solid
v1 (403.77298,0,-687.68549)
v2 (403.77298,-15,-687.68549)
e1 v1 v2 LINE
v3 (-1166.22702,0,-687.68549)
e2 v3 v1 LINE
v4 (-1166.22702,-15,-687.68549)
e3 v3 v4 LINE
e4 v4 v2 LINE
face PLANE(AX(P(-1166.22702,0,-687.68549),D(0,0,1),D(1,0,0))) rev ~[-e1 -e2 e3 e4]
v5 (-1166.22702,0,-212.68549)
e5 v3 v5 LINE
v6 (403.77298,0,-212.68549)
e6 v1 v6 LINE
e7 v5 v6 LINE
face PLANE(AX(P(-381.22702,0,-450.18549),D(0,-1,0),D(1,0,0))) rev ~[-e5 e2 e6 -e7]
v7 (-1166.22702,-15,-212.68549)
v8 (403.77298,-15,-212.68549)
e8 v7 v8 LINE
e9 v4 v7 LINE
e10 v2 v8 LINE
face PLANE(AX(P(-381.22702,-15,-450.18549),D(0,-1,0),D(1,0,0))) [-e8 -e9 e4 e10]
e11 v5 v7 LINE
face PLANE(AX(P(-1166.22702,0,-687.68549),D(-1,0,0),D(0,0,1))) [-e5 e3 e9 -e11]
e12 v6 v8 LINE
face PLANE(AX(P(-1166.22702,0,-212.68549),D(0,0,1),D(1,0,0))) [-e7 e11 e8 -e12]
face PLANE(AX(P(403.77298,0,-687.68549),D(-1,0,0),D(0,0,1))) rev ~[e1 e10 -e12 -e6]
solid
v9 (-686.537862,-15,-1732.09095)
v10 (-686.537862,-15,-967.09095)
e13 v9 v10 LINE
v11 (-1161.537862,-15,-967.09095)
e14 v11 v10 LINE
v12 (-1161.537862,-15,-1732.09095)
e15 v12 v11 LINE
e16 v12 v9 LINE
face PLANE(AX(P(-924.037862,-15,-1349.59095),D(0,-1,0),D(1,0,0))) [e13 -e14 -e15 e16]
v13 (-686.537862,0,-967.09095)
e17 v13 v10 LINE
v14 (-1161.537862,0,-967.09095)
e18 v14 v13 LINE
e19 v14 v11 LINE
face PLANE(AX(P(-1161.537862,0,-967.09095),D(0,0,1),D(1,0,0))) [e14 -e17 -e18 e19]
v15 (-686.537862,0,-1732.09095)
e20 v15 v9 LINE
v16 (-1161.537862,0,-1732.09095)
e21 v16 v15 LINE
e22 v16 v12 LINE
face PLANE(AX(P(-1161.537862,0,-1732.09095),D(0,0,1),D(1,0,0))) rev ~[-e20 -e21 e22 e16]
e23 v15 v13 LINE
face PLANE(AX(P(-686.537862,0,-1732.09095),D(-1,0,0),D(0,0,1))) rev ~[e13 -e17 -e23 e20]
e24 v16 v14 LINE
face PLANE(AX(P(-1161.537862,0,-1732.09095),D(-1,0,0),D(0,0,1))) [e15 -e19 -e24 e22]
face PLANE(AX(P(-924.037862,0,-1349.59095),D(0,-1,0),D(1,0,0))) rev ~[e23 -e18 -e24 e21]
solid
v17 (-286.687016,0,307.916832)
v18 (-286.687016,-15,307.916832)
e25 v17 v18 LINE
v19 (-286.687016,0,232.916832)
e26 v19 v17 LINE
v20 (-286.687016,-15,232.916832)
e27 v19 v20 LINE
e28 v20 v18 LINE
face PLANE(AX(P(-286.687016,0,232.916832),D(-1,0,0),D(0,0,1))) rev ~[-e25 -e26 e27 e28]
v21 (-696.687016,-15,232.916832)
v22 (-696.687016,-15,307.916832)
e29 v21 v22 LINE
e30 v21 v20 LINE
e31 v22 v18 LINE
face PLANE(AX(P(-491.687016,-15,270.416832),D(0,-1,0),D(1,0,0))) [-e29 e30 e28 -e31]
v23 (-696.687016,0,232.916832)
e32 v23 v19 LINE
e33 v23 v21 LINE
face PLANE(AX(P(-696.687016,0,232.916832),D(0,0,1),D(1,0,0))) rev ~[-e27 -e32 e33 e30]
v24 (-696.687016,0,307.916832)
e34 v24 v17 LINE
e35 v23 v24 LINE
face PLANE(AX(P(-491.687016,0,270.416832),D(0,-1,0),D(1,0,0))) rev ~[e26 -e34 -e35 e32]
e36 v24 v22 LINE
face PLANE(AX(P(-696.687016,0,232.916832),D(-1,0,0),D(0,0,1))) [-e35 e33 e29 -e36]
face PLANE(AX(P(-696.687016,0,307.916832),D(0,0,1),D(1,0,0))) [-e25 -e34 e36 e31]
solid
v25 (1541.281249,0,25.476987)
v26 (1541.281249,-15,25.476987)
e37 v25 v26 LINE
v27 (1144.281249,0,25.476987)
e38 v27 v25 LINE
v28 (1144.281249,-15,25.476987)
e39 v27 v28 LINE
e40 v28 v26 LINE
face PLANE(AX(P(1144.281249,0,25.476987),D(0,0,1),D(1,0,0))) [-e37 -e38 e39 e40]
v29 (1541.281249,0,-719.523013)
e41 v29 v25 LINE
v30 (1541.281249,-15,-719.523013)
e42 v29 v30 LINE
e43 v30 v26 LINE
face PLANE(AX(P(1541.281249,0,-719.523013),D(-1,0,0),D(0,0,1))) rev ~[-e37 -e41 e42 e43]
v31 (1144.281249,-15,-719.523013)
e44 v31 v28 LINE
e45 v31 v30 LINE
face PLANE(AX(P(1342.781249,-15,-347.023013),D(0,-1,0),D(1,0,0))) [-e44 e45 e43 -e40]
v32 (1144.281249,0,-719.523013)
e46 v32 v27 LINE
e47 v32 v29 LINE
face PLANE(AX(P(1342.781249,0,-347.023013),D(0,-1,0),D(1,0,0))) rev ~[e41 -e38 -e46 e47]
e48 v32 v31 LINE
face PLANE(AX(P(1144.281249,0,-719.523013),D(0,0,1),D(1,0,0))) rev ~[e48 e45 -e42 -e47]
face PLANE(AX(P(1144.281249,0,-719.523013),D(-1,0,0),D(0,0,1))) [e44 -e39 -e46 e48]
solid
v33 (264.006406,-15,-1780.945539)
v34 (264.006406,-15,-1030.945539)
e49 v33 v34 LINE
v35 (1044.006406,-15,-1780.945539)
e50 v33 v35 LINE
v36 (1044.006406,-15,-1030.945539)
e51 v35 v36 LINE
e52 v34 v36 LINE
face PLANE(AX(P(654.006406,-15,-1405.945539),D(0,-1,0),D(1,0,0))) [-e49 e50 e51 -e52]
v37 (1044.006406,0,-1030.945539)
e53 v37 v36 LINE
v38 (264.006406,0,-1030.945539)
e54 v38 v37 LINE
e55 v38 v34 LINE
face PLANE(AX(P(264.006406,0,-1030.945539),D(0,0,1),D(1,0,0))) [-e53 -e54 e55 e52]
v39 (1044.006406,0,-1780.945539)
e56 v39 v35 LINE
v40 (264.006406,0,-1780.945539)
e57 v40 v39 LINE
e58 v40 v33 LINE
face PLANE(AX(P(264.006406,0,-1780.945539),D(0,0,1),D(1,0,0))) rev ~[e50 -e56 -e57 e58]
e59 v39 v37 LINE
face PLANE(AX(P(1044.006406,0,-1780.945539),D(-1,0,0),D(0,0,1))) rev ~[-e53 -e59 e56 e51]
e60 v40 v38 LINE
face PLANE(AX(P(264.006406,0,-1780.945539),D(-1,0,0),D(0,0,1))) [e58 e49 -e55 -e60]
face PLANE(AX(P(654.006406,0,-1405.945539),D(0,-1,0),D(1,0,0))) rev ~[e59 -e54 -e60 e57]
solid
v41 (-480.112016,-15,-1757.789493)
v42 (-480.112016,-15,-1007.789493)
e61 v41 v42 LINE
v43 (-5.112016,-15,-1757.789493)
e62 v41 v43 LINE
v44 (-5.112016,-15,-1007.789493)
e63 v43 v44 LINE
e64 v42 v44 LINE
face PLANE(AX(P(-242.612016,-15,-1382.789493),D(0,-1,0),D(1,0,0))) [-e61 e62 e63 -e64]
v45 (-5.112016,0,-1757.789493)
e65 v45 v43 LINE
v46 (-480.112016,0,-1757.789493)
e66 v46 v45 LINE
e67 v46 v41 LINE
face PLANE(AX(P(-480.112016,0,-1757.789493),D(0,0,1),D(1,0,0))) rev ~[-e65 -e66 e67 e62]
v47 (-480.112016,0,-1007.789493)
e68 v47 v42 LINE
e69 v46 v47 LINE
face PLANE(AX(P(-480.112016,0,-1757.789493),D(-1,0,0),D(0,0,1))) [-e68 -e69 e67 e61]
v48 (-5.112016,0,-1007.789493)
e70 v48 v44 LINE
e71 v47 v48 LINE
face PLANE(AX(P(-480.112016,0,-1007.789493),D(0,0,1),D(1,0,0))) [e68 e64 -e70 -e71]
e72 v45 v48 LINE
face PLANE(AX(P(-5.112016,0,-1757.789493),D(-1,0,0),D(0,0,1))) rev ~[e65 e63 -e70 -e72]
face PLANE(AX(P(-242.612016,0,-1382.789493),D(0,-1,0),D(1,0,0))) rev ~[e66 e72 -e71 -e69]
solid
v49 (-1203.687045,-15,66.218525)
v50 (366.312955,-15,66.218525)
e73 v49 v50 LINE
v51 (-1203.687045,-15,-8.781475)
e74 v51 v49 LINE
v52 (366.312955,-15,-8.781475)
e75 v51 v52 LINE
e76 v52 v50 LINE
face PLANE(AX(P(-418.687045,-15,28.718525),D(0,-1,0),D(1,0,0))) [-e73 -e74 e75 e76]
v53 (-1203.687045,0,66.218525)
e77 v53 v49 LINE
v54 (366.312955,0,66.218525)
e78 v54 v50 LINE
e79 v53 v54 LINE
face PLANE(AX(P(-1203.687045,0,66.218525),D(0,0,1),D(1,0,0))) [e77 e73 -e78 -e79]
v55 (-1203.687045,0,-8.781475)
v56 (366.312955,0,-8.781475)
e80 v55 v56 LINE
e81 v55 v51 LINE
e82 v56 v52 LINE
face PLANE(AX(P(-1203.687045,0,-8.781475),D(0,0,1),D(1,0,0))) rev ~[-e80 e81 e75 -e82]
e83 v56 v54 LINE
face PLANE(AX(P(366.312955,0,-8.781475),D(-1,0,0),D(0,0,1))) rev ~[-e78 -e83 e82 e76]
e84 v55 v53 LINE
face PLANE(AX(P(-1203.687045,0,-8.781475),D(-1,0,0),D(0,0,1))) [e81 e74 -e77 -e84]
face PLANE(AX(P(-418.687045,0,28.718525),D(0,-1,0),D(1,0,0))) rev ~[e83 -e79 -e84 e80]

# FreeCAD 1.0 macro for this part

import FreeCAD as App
import Part
import Sketcher

V = App.Vector
Q = App.Units.Quantity

doc = App.newDocument("Part")
body = doc.addObject("PartDesign::Body", "Body")

# Sketch on XZ plane
sketch1 = body.newObject("Sketcher::SketchObject", "Sketch")
sketch1.AttachmentSupport = (doc.getObject("XZ_Plane"), [""])
sketch1.MapMode = "FlatFace"
sketch1.addGeometry([
    Part.LineSegment(V(-1203.687045, 66.218525, 0), V(-1203.687045, -8.781475, 0)),
    Part.LineSegment(V(-1203.687045, -8.781475, 0), V(366.312955, -8.781475, 0)),
    Part.LineSegment(V(366.312955, -8.781475, 0), V(366.312955, 66.218525, 0)),
    Part.LineSegment(V(366.312955, 66.218525, 0), V(-1203.687045, 66.218525, 0)),
], False)
sketch1.addConstraint([
    Sketcher.Constraint("Coincident", 0, 2, 1, 1),
    Sketcher.Constraint("Coincident", 1, 2, 2, 1),
    Sketcher.Constraint("Coincident", 2, 2, 3, 1),
    Sketcher.Constraint("Coincident", 3, 2, 0, 1),
    Sketcher.Constraint("Vertical", 0),
    Sketcher.Constraint("Horizontal", 1),
    Sketcher.Constraint("Vertical", 2),
    Sketcher.Constraint("Horizontal", 3),
    Sketcher.Constraint("DistanceX", 1, 1, 1, 2, Q("1570 mm")),
    Sketcher.Constraint("DistanceY", 0, 2, 0, 1, Q("75 mm")),
    Sketcher.Constraint("DistanceX", 0, 2, -1, 1, Q("1203.687045 mm")),
    Sketcher.Constraint("DistanceY", 0, 2, -1, 1, Q("8.781475 mm")),
])
pad1 = body.newObject("PartDesign::Pad", "Pad")
pad1.Profile = sketch1
pad1.Length = 15
body2 = doc.addObject("PartDesign::Body", "Body001")

# Sketch on XZ plane
sketch2 = body2.newObject("Sketcher::SketchObject", "Sketch001")
sketch2.AttachmentSupport = (doc.getObject("XZ_Plane001"), [""])
sketch2.MapMode = "FlatFace"
sketch2.addGeometry([
    Part.LineSegment(V(-1166.22702, -212.68549, 0), V(-1166.22702, -687.68549, 0)),
    Part.LineSegment(V(-1166.22702, -687.68549, 0), V(403.77298, -687.68549, 0)),
    Part.LineSegment(V(403.77298, -687.68549, 0), V(403.77298, -212.68549, 0)),
    Part.LineSegment(V(403.77298, -212.68549, 0), V(-1166.22702, -212.68549, 0)),
], False)
sketch2.addConstraint([
    Sketcher.Constraint("Coincident", 0, 2, 1, 1),
    Sketcher.Constraint("Coincident", 1, 2, 2, 1),
    Sketcher.Constraint("Coincident", 2, 2, 3, 1),
    Sketcher.Constraint("Coincident", 3, 2, 0, 1),
    Sketcher.Constraint("Vertical", 0),
    Sketcher.Constraint("Horizontal", 1),
    Sketcher.Constraint("Vertical", 2),
    Sketcher.Constraint("Horizontal", 3),
    Sketcher.Constraint("DistanceX", 1, 1, 1, 2, Q("1570 mm")),
    Sketcher.Constraint("DistanceY", 0, 2, 0, 1, Q("475 mm")),
    Sketcher.Constraint("DistanceX", 0, 2, -1, 1, Q("1166.22702 mm")),
    Sketcher.Constraint("DistanceY", 0, 2, -1, 1, Q("687.68549 mm")),
])
pad2 = body2.newObject("PartDesign::Pad", "Pad001")
pad2.Profile = sketch2
pad2.Length = 15
body3 = doc.addObject("PartDesign::Body", "Body002")

# Sketch on XZ plane
sketch3 = body3.newObject("Sketcher::SketchObject", "Sketch002")
sketch3.AttachmentSupport = (doc.getObject("XZ_Plane002"), [""])
sketch3.MapMode = "FlatFace"
sketch3.addGeometry([
    Part.LineSegment(V(-1161.537862, -967.09095, 0), V(-1161.537862, -1732.09095, 0)),
    Part.LineSegment(V(-1161.537862, -1732.09095, 0), V(-686.537862, -1732.09095, 0)),
    Part.LineSegment(V(-686.537862, -1732.09095, 0), V(-686.537862, -967.09095, 0)),
    Part.LineSegment(V(-686.537862, -967.09095, 0), V(-1161.537862, -967.09095, 0)),
], False)
sketch3.addConstraint([
    Sketcher.Constraint("Coincident", 0, 2, 1, 1),
    Sketcher.Constraint("Coincident", 1, 2, 2, 1),
    Sketcher.Constraint("Coincident", 2, 2, 3, 1),
    Sketcher.Constraint("Coincident", 3, 2, 0, 1),
    Sketcher.Constraint("Vertical", 0),
    Sketcher.Constraint("Horizontal", 1),
    Sketcher.Constraint("Vertical", 2),
    Sketcher.Constraint("Horizontal", 3),
    Sketcher.Constraint("DistanceX", 1, 1, 1, 2, Q("475 mm")),
    Sketcher.Constraint("DistanceY", 0, 2, 0, 1, Q("765 mm")),
    Sketcher.Constraint("DistanceX", 0, 2, -1, 1, Q("1161.537862 mm")),
    Sketcher.Constraint("DistanceY", 0, 2, -1, 1, Q("1732.09095 mm")),
])
pad3 = body3.newObject("PartDesign::Pad", "Pad002")
pad3.Profile = sketch3
pad3.Length = 15
body4 = doc.addObject("PartDesign::Body", "Body003")

# Sketch on XZ plane
sketch4 = body4.newObject("Sketcher::SketchObject", "Sketch003")
sketch4.AttachmentSupport = (doc.getObject("XZ_Plane003"), [""])
sketch4.MapMode = "FlatFace"
sketch4.addGeometry([
    Part.LineSegment(V(-696.687016, 307.916832, 0), V(-696.687016, 232.916832, 0)),
    Part.LineSegment(V(-696.687016, 232.916832, 0), V(-286.687016, 232.916832, 0)),
    Part.LineSegment(V(-286.687016, 232.916832, 0), V(-286.687016, 307.916832, 0)),
    Part.LineSegment(V(-286.687016, 307.916832, 0), V(-696.687016, 307.916832, 0)),
], False)
sketch4.addConstraint([
    Sketcher.Constraint("Coincident", 0, 2, 1, 1),
    Sketcher.Constraint("Coincident", 1, 2, 2, 1),
    Sketcher.Constraint("Coincident", 2, 2, 3, 1),
    Sketcher.Constraint("Coincident", 3, 2, 0, 1),
    Sketcher.Constraint("Vertical", 0),
    Sketcher.Constraint("Horizontal", 1),
    Sketcher.Constraint("Vertical", 2),
    Sketcher.Constraint("Horizontal", 3),
    Sketcher.Constraint("DistanceX", 1, 1, 1, 2, Q("410 mm")),
    Sketcher.Constraint("DistanceY", 0, 2, 0, 1, Q("75 mm")),
    Sketcher.Constraint("DistanceY", -1, 1, 0, 2, Q("232.916832 mm")),
    Sketcher.Constraint("DistanceX", 0, 2, -1, 1, Q("696.687016 mm")),
])
pad4 = body4.newObject("PartDesign::Pad", "Pad003")
pad4.Profile = sketch4
pad4.Length = 15
body5 = doc.addObject("PartDesign::Body", "Body004")

# Sketch on XZ plane
sketch5 = body5.newObject("Sketcher::SketchObject", "Sketch004")
sketch5.AttachmentSupport = (doc.getObject("XZ_Plane004"), [""])
sketch5.MapMode = "FlatFace"
sketch5.addGeometry([
    Part.LineSegment(V(-480.112016, -1007.789493, 0), V(-480.112016, -1757.789493, 0)),
    Part.LineSegment(V(-480.112016, -1757.789493, 0), V(-5.112016, -1757.789493, 0)),
    Part.LineSegment(V(-5.112016, -1757.789493, 0), V(-5.112016, -1007.789493, 0)),
    Part.LineSegment(V(-5.112016, -1007.789493, 0), V(-480.112016, -1007.789493, 0)),
], False)
sketch5.addConstraint([
    Sketcher.Constraint("Coincident", 0, 2, 1, 1),
    Sketcher.Constraint("Coincident", 1, 2, 2, 1),
    Sketcher.Constraint("Coincident", 2, 2, 3, 1),
    Sketcher.Constraint("Coincident", 3, 2, 0, 1),
    Sketcher.Constraint("Vertical", 0),
    Sketcher.Constraint("Horizontal", 1),
    Sketcher.Constraint("Vertical", 2),
    Sketcher.Constraint("Horizontal", 3),
    Sketcher.Constraint("DistanceX", 1, 1, 1, 2, Q("475 mm")),
    Sketcher.Constraint("DistanceY", 0, 2, 0, 1, Q("750 mm")),
    Sketcher.Constraint("DistanceX", 0, 2, -1, 1, Q("480.112016 mm")),
    Sketcher.Constraint("DistanceY", 0, 2, -1, 1, Q("1757.789493 mm")),
])
pad5 = body5.newObject("PartDesign::Pad", "Pad004")
pad5.Profile = sketch5
pad5.Length = 15
body6 = doc.addObject("PartDesign::Body", "Body005")

# Sketch on XZ plane
sketch6 = body6.newObject("Sketcher::SketchObject", "Sketch005")
sketch6.AttachmentSupport = (doc.getObject("XZ_Plane005"), [""])
sketch6.MapMode = "FlatFace"
sketch6.addGeometry([
    Part.LineSegment(V(264.006406, -1030.945539, 0), V(264.006406, -1780.945539, 0)),
    Part.LineSegment(V(264.006406, -1780.945539, 0), V(1044.006406, -1780.945539, 0)),
    Part.LineSegment(V(1044.006406, -1780.945539, 0), V(1044.006406, -1030.945539, 0)),
    Part.LineSegment(V(1044.006406, -1030.945539, 0), V(264.006406, -1030.945539, 0)),
], False)
sketch6.addConstraint([
    Sketcher.Constraint("Coincident", 0, 2, 1, 1),
    Sketcher.Constraint("Coincident", 1, 2, 2, 1),
    Sketcher.Constraint("Coincident", 2, 2, 3, 1),
    Sketcher.Constraint("Coincident", 3, 2, 0, 1),
    Sketcher.Constraint("Vertical", 0),
    Sketcher.Constraint("Horizontal", 1),
    Sketcher.Constraint("Vertical", 2),
    Sketcher.Constraint("Horizontal", 3),
    Sketcher.Constraint("DistanceX", 1, 1, 1, 2, Q("780 mm")),
    Sketcher.Constraint("DistanceY", 0, 2, 0, 1, Q("750 mm")),
    Sketcher.Constraint("DistanceY", 0, 2, -1, 1, Q("1780.945539 mm")),
    Sketcher.Constraint("DistanceX", -1, 1, 0, 2, Q("264.006406 mm")),
])
pad6 = body6.newObject("PartDesign::Pad", "Pad005")
pad6.Profile = sketch6
pad6.Length = 15
body7 = doc.addObject("PartDesign::Body", "Body006")

# Sketch on XZ plane
sketch7 = body7.newObject("Sketcher::SketchObject", "Sketch006")
sketch7.AttachmentSupport = (doc.getObject("XZ_Plane006"), [""])
sketch7.MapMode = "FlatFace"
sketch7.addGeometry([
    Part.LineSegment(V(1144.281249, 25.476987, 0), V(1144.281249, -719.523013, 0)),
    Part.LineSegment(V(1144.281249, -719.523013, 0), V(1541.281249, -719.523013, 0)),
    Part.LineSegment(V(1541.281249, -719.523013, 0), V(1541.281249, 25.476987, 0)),
    Part.LineSegment(V(1541.281249, 25.476987, 0), V(1144.281249, 25.476987, 0)),
], False)
sketch7.addConstraint([
    Sketcher.Constraint("Coincident", 0, 2, 1, 1),
    Sketcher.Constraint("Coincident", 1, 2, 2, 1),
    Sketcher.Constraint("Coincident", 2, 2, 3, 1),
    Sketcher.Constraint("Coincident", 3, 2, 0, 1),
    Sketcher.Constraint("Vertical", 0),
    Sketcher.Constraint("Horizontal", 1),
    Sketcher.Constraint("Vertical", 2),
    Sketcher.Constraint("Horizontal", 3),
    Sketcher.Constraint("DistanceX", 1, 1, 1, 2, Q("397 mm")),
    Sketcher.Constraint("DistanceY", 0, 2, 0, 1, Q("745 mm")),
    Sketcher.Constraint("DistanceX", -1, 1, 0, 2, Q("1144.281249 mm")),
    Sketcher.Constraint("DistanceY", 0, 2, -1, 1, Q("719.523013 mm")),
])
pad7 = body7.newObject("PartDesign::Pad", "Pad006")
pad7.Profile = sketch7
pad7.Length = 15

doc.recompute()
